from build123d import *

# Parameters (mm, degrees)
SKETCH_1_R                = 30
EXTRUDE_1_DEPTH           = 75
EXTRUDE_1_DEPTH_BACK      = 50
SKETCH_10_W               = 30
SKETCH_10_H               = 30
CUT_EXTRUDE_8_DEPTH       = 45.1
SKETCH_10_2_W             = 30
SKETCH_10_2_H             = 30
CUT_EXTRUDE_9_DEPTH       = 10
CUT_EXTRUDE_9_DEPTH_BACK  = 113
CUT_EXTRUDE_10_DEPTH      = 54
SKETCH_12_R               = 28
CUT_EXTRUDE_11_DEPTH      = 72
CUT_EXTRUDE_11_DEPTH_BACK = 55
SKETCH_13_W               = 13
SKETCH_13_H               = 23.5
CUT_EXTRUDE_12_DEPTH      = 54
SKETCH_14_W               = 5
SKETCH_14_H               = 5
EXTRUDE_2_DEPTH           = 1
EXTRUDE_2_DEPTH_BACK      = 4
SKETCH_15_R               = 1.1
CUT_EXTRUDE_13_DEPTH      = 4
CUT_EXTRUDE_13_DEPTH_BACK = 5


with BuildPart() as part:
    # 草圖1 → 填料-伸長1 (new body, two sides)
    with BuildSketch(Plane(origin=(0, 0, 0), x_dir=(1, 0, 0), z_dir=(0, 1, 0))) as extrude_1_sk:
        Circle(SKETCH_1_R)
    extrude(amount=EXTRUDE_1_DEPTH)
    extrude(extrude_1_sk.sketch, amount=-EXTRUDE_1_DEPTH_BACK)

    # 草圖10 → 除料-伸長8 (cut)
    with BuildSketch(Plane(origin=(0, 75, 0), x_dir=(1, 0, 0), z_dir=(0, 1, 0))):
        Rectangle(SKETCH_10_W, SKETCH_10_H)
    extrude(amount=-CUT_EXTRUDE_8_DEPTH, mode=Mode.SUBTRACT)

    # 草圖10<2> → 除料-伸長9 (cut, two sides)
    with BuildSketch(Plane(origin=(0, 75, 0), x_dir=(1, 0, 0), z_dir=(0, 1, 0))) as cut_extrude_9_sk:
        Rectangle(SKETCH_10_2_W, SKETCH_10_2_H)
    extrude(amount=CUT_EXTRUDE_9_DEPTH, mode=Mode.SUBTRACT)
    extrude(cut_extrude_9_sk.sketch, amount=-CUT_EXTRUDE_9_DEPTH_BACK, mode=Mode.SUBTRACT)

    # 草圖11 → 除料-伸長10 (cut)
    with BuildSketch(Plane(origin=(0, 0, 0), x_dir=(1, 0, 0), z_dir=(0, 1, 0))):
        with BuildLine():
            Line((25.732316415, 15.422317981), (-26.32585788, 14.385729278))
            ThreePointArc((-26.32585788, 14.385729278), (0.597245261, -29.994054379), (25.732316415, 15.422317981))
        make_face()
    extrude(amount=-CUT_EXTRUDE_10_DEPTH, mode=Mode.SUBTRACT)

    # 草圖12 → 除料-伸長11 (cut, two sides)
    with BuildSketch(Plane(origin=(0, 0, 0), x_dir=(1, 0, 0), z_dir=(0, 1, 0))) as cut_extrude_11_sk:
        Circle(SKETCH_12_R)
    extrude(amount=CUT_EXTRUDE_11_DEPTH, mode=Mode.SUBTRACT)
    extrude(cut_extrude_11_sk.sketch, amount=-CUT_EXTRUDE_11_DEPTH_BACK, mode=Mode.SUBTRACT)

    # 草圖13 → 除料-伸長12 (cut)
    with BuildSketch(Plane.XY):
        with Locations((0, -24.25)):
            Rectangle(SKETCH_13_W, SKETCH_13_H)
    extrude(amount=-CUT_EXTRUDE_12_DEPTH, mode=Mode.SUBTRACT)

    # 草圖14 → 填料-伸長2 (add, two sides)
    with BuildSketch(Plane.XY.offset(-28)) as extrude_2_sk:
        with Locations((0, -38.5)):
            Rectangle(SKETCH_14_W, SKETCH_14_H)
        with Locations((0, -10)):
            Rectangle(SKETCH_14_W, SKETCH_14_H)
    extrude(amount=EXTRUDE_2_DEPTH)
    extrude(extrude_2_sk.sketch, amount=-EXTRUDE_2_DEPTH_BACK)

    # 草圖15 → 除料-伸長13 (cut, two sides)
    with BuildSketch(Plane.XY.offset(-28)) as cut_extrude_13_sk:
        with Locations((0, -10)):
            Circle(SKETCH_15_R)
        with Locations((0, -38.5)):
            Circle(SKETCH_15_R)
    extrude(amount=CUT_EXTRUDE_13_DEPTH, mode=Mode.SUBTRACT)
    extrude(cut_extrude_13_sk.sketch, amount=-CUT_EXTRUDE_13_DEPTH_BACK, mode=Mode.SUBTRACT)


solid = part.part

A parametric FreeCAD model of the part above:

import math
import FreeCAD as App
import Part
import Sketcher


def add_polygon(sketch, points):
    """Adds a closed chain of lines whose ends are joined by coincident constraints."""
    first, n = sketch.GeometryCount, len(points)
    for a, b in zip(points, points[1:] + points[:1]):
        sketch.addGeometry(Part.LineSegment(App.Vector(*a, 0), App.Vector(*b, 0)), False)
    for i in range(n):
        sketch.addConstraint(Sketcher.Constraint("Coincident", first + i, 2, first + (i + 1) % n, 1))

doc = App.newDocument("Part")
params = doc.addObject("Spreadsheet::Sheet", "Params")
for row, (alias, value) in enumerate([
    ("sketch1_diameter", "60 mm"),
    ("pad1_length", "75 mm"),
    ("pad1_length2", "50 mm"),
    ("sketch2_width", "30 mm"),
    ("pocket1_length", "45.1 mm"),
    ("sketch3_width", "30 mm"),
    ("pocket2_length", "10 mm"),
    ("pocket2_length2", "113 mm"),
    ("sketch4_radius", "30 mm"),
    ("pocket3_length", "54 mm"),
    ("sketch5_diameter", "56 mm"),
    ("pocket4_length", "72 mm"),
    ("pocket4_length2", "55 mm"),
    ("sketch6_width", "13 mm"),
    ("sketch6_height", "23.5 mm"),
    ("pocket5_length", "54 mm"),
    ("sketch7_width", "5 mm"),
    ("pad2_length", "1 mm"),
    ("pad2_length2", "4 mm"),
    ("sketch8_diameter", "2.2 mm"),
], start=1):
    params.set(f"A{row}", alias)
    params.set(f"B{row}", "=" + value)
    params.setAlias(f"B{row}", alias)

body = doc.addObject("PartDesign::Body", "Body")

sketch1 = body.newObject("Sketcher::SketchObject", "Sketch")
sketch1.AttachmentSupport = (doc.getObject("XZ_Plane"), [""])
sketch1.MapMode = "FlatFace"
sketch1.addGeometry(Part.Circle(App.Vector(0, 0, 0), App.Vector(0, 0, 1), 30), False)
sketch1.addConstraint([
    Sketcher.Constraint("Coincident", 0, 3, -1, 1),
    Sketcher.Constraint("Diameter", 0, 60.0),
])
sketch1.setExpression("Constraints[1]", "Params.sketch1_diameter")
pad1 = body.newObject("PartDesign::Pad", "Pad")
pad1.Profile = sketch1
pad1.Type = "TwoLengths"
pad1.setExpression("Length", "Params.pad1_length")
pad1.setExpression("Length2", "Params.pad1_length2")
pad1.Reversed = True

sketch2 = body.newObject("Sketcher::SketchObject", "Sketch001")
sketch2.AttachmentSupport = (doc.getObject("XZ_Plane"), [""])
sketch2.MapMode = "FlatFace"
sketch2.AttachmentOffset = App.Placement(App.Vector(0, 0, -75), App.Rotation())
add_polygon(sketch2, [(-15, -15), (-15, 15), (15, 15), (15, -15)])
sketch2.addConstraint([
    Sketcher.Constraint("Vertical", 0),
    Sketcher.Constraint("Horizontal", 1),
    Sketcher.Constraint("Vertical", 2),
    Sketcher.Constraint("Horizontal", 3),
    Sketcher.Constraint("Symmetric", 0, 2, 2, 2, -1, 1),
    Sketcher.Constraint("Equal", 3, 0),
    Sketcher.Constraint("DistanceX", 1, 1, 1, 2, 30.0),
])
sketch2.setExpression("Constraints[10]", "Params.sketch2_width")
pocket1 = body.newObject("PartDesign::Pocket", "Pocket")
pocket1.Profile = sketch2
pocket1.setExpression("Length", "Params.pocket1_length")
pocket1.Reversed = True

sketch3 = body.newObject("Sketcher::SketchObject", "Sketch002")
sketch3.AttachmentSupport = (doc.getObject("XZ_Plane"), [""])
sketch3.MapMode = "FlatFace"
sketch3.AttachmentOffset = App.Placement(App.Vector(0, 0, -75), App.Rotation())
add_polygon(sketch3, [(-15, -15), (-15, 15), (15, 15), (15, -15)])
sketch3.addConstraint([
    Sketcher.Constraint("Vertical", 0),
    Sketcher.Constraint("Horizontal", 1),
    Sketcher.Constraint("Vertical", 2),
    Sketcher.Constraint("Horizontal", 3),
    Sketcher.Constraint("Symmetric", 0, 2, 2, 2, -1, 1),
    Sketcher.Constraint("Equal", 3, 0),
    Sketcher.Constraint("DistanceX", 1, 1, 1, 2, 30.0),
])
sketch3.setExpression("Constraints[10]", "Params.sketch3_width")
pocket2 = body.newObject("PartDesign::Pocket", "Pocket001")
pocket2.Profile = sketch3
pocket2.Type = "TwoLengths"
pocket2.setExpression("Length", "Params.pocket2_length")
pocket2.setExpression("Length2", "Params.pocket2_length2")

sketch4 = body.newObject("Sketcher::SketchObject", "Sketch003")
sketch4.AttachmentSupport = (doc.getObject("XZ_Plane"), [""])
sketch4.MapMode = "FlatFace"
sketch4.addGeometry([
    Part.LineSegment(App.Vector(26, -15, 0), App.Vector(-26, -14, 0)),
    Part.ArcOfCircle(Part.Circle(App.Vector(0, 0, 0), App.Vector(0, 0, 1), 30), math.radians(-31), math.radians(209)),
], False)
sketch4.addConstraint([
    Sketcher.Constraint("Coincident", 0, 1, 1, 1),
    Sketcher.Constraint("Coincident", 1, 2, 0, 2),
    Sketcher.Constraint("Coincident", 1, 3, -1, 1),
    Sketcher.Constraint("Radius", 1, 30.0),
    Sketcher.Constraint("DistanceY", 1, 2, -1, 1, 14.385729),
    Sketcher.Constraint("DistanceY", 0, 1, 1, 2, 1.036589),
])
sketch4.setExpression("Constraints[3]", "Params.sketch4_radius")
pocket3 = body.newObject("PartDesign::Pocket", "Pocket002")
pocket3.Profile = sketch4
pocket3.setExpression("Length", "Params.pocket3_length")
pocket3.Reversed = True

sketch5 = body.newObject("Sketcher::SketchObject", "Sketch004")
sketch5.AttachmentSupport = (doc.getObject("XZ_Plane"), [""])
sketch5.MapMode = "FlatFace"
sketch5.addGeometry(Part.Circle(App.Vector(0, 0, 0), App.Vector(0, 0, 1), 28), False)
sketch5.addConstraint([
    Sketcher.Constraint("Coincident", 0, 3, -1, 1),
    Sketcher.Constraint("Diameter", 0, 56.0),
])
sketch5.setExpression("Constraints[1]", "Params.sketch5_diameter")
pocket4 = body.newObject("PartDesign::Pocket", "Pocket003")
pocket4.Profile = sketch5
pocket4.Type = "TwoLengths"
pocket4.setExpression("Length", "Params.pocket4_length")
pocket4.setExpression("Length2", "Params.pocket4_length2")

sketch6 = body.newObject("Sketcher::SketchObject", "Sketch005")
sketch6.AttachmentSupport = (doc.getObject("XY_Plane"), [""])
sketch6.MapMode = "FlatFace"
add_polygon(sketch6, [(-6, -12), (-6, -36), (6, -36), (6, -12)])
sketch6.addConstraint([
    Sketcher.Constraint("Vertical", 0),
    Sketcher.Constraint("Horizontal", 1),
    Sketcher.Constraint("Vertical", 2),
    Sketcher.Constraint("Horizontal", 3),
    Sketcher.Constraint("DistanceX", 1, 1, 1, 2, 13.0),
    Sketcher.Constraint("DistanceY", 0, 2, 0, 1, 23.5),
    Sketcher.Constraint("DistanceY", 0, 2, -1, 1, 36.0),
    Sketcher.Constraint("DistanceX", 0, 2, -1, 1, 6.5),
])
sketch6.setExpression("Constraints[8]", "Params.sketch6_width")
sketch6.setExpression("Constraints[9]", "Params.sketch6_height")
pocket5 = body.newObject("PartDesign::Pocket", "Pocket004")
pocket5.Profile = sketch6
pocket5.setExpression("Length", "Params.pocket5_length")

sketch7 = body.newObject("Sketcher::SketchObject", "Sketch006")
sketch7.AttachmentSupport = (doc.getObject("XY_Plane"), [""])
sketch7.MapMode = "FlatFace"
sketch7.AttachmentOffset = App.Placement(App.Vector(0, 0, -28), App.Rotation())
add_polygon(sketch7, [(-2, -36), (-2, -41), (2, -41), (2, -36)])
add_polygon(sketch7, [(-2, -8), (-2, -12), (2, -12), (2, -8)])
sketch7.addConstraint([
    Sketcher.Constraint("Vertical", 0),
    Sketcher.Constraint("Horizontal", 1),
    Sketcher.Constraint("Vertical", 2),
    Sketcher.Constraint("Horizontal", 3),
    Sketcher.Constraint("Vertical", 4),
    Sketcher.Constraint("Horizontal", 5),
    Sketcher.Constraint("Vertical", 6),
    Sketcher.Constraint("Horizontal", 7),
    Sketcher.Constraint("Vertical", 3, 2, 4, 2),
    Sketcher.Constraint("Vertical", 2, 2, 5, 2),
    Sketcher.Constraint("Equal", 7, 0),
    Sketcher.Constraint("Equal", 2, 4),
    Sketcher.Constraint("DistanceX", 1, 1, 1, 2, 5.0),
    Sketcher.Constraint("DistanceY", 0, 2, -1, 1, 41.0),
    Sketcher.Constraint("DistanceX", 0, 2, -1, 1, 2.5),
    Sketcher.Constraint("DistanceY", 4, 2, -1, 1, 12.5),
])
sketch7.setExpression("Constraints[20]", "Params.sketch7_width")
pad2 = body.newObject("PartDesign::Pad", "Pad001")
pad2.Profile = sketch7
pad2.Type = "TwoLengths"
pad2.setExpression("Length", "Params.pad2_length")
pad2.setExpression("Length2", "Params.pad2_length2")

sketch8 = body.newObject("Sketcher::SketchObject", "Sketch007")
sketch8.AttachmentSupport = (doc.getObject("XY_Plane"), [""])
sketch8.MapMode = "FlatFace"
sketch8.AttachmentOffset = App.Placement(App.Vector(0, 0, -28), App.Rotation())
sketch8.addGeometry([
    Part.Circle(App.Vector(0, -10, 0), App.Vector(0, 0, 1), 1.1),
    Part.Circle(App.Vector(0, -38.5, 0), App.Vector(0, 0, 1), 1.1),
], False)
sketch8.addConstraint([
    Sketcher.Constraint("Equal", 0, 1),
    Sketcher.Constraint("PointOnObject", 0, 3, -2),
    Sketcher.Constraint("PointOnObject", 1, 3, -2),
    Sketcher.Constraint("Diameter", 0, 2.2),
    Sketcher.Constraint("DistanceY", 0, 3, -1, 1, 10.0),
    Sketcher.Constraint("DistanceY", 1, 3, -1, 1, 38.5),
])
sketch8.setExpression("Constraints[3]", "Params.sketch8_diameter")
pocket6 = body.newObject("PartDesign::Pocket", "Pocket005")
pocket6.Profile = sketch8
pocket6.Type = "ThroughAll"
pocket6.Midplane = True

doc.recompute()
